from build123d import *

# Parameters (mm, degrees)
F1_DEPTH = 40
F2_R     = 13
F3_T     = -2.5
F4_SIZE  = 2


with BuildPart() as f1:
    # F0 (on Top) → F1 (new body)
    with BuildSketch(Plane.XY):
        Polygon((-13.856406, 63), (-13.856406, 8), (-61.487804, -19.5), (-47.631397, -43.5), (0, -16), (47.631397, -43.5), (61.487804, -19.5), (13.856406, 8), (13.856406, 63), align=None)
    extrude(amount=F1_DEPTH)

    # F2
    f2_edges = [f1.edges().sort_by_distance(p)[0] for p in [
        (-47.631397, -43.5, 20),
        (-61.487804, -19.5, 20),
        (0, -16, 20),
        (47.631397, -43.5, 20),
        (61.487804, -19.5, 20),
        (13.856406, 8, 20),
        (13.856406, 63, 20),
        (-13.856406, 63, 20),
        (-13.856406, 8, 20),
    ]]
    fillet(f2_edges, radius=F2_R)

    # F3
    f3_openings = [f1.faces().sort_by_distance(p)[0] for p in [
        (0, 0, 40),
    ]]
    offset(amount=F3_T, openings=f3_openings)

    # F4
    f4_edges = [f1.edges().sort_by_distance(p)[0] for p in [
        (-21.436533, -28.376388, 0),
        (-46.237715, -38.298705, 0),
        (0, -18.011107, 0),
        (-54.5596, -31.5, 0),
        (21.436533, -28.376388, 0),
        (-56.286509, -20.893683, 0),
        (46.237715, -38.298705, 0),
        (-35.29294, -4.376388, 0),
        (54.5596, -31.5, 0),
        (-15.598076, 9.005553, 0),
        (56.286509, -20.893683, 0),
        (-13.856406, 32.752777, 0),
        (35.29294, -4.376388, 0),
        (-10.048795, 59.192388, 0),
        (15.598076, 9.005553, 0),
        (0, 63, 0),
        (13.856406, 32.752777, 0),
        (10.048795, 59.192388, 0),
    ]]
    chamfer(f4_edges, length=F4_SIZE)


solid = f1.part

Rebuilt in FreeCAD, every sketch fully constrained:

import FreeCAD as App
import Part
import Sketcher
from FreeCAD import Vector
Q = App.Units.Quantity


def edges_at(feature, points):
    """Names of the edges that pass closest to the given points."""
    edges = feature.Shape.Edges
    near = lambda p: min(range(len(edges)), key=lambda i: edges[i].distToShape(Part.Vertex(*p))[0])
    return sorted({f"Edge{near(p) + 1}" for p in points})


def faces_at(feature, points):
    """Names of the faces that lie closest to the given points."""
    faces = feature.Shape.Faces
    near = lambda p: min(range(len(faces)), key=lambda i: faces[i].distToShape(Part.Vertex(*p))[0])
    return sorted({f"Face{near(p) + 1}" for p in points})


def add_polygon(sketch, points):
    """Adds a closed chain of lines whose ends are joined by coincident constraints."""
    first, n = sketch.GeometryCount, len(points)
    for a, b in zip(points, points[1:] + points[:1]):
        sketch.addGeometry(Part.LineSegment(App.Vector(*a, 0), App.Vector(*b, 0)), False)
    for i in range(n):
        sketch.addConstraint(Sketcher.Constraint("Coincident", first + i, 2, first + (i + 1) % n, 1))

doc = App.newDocument("Part")
body = doc.addObject("PartDesign::Body", "Body")

# Sketch on XY plane
sketch1 = body.newObject("Sketcher::SketchObject", "Sketch")
sketch1.AttachmentSupport = (doc.getObject("XY_Plane"), [""])
sketch1.MapMode = "FlatFace"
add_polygon(sketch1, [(-14, 63), (-14, 8), (-61, -20), (-48, -44), (0, -16), (48, -44), (61, -20), (14, 8), (14, 63)])  # lines 0-8
sketch1.addConstraint(Sketcher.Constraint("Vertical", 0))
sketch1.addConstraint(Sketcher.Constraint("Vertical", 7))
sketch1.addConstraint(Sketcher.Constraint("Horizontal", 8))
sketch1.addConstraint(Sketcher.Constraint("Symmetric", 2, 2, 4, 2, -2))
sketch1.addConstraint(Sketcher.Constraint("Symmetric", 1, 2, 5, 2, -2))
sketch1.addConstraint(Sketcher.Constraint("Symmetric", 0, 2, 6, 2, -2))
sketch1.addConstraint(Sketcher.Constraint("PointOnObject", 3, 2, -2))
sketch1.addConstraint(Sketcher.Constraint("Perpendicular", 1, 2))
sketch1.addConstraint(Sketcher.Constraint("Perpendicular", 2, 3))
sketch1.addConstraint(Sketcher.Constraint("Equal", 1, 3))
sketch1.addConstraint(Sketcher.Constraint("DistanceY", 0, 2, 0, 1, Q("55 mm")))
sketch1.addConstraint(Sketcher.Constraint("Angle", 1, Q("-150 deg")))
sketch1.addConstraint(Sketcher.Constraint("Distance", 1, Q("55.000001 mm")))
sketch1.addConstraint(Sketcher.Constraint("DistanceY", -1, 1, 0, 2, Q("8 mm")))
sketch1.addConstraint(Sketcher.Constraint("DistanceY", 3, 2, -1, 1, Q("16 mm")))
pad1 = body.newObject("PartDesign::Pad", "Pad")
pad1.Profile = sketch1
pad1.Length = 40
doc.recompute()

fillet = body.newObject("PartDesign::Fillet", "Fillet")
fillet.Base = (pad1, edges_at(pad1, [
    (-47.631, -43.5, 20),
    (-61.488, -19.5, 20),
    (0, -16, 20),
    (47.631, -43.5, 20),
    (61.488, -19.5, 20),
    (13.856, 8, 20),
    (13.856, 63, 20),
    (-13.856, 63, 20),
    (-13.856, 8, 20),
]))
fillet.Radius = 13
doc.recompute()

thickness = body.newObject("PartDesign::Thickness", "Thickness")
thickness.Base = (fillet, faces_at(fillet, [(0, 12.129, 40)]))
thickness.Value = 2.5
thickness.Reversed = True
thickness.Join = "Arc"
doc.recompute()

chamfer = body.newObject("PartDesign::Chamfer", "Chamfer")
chamfer.Base = (thickness, edges_at(thickness, [
    (-21.437, -28.376, 0),
    (-46.238, -38.299, 0),
    (0, -18.011, 0),
    (-54.56, -31.5, 0),
    (21.437, -28.376, 0),
    (-56.287, -20.894, 0),
    (46.238, -38.299, 0),
    (-35.293, -4.376, 0),
    (54.56, -31.5, 0),
    (-15.598, 9.006, 0),
    (56.287, -20.894, 0),
    (-13.856, 32.753, 0),
    (35.293, -4.376, 0),
    (-10.049, 59.192, 0),
    (15.598, 9.006, 0),
    (0, 63, 0),
    (13.856, 32.753, 0),
    (10.049, 59.192, 0),
]))
chamfer.Size = 2

doc.recompute()
